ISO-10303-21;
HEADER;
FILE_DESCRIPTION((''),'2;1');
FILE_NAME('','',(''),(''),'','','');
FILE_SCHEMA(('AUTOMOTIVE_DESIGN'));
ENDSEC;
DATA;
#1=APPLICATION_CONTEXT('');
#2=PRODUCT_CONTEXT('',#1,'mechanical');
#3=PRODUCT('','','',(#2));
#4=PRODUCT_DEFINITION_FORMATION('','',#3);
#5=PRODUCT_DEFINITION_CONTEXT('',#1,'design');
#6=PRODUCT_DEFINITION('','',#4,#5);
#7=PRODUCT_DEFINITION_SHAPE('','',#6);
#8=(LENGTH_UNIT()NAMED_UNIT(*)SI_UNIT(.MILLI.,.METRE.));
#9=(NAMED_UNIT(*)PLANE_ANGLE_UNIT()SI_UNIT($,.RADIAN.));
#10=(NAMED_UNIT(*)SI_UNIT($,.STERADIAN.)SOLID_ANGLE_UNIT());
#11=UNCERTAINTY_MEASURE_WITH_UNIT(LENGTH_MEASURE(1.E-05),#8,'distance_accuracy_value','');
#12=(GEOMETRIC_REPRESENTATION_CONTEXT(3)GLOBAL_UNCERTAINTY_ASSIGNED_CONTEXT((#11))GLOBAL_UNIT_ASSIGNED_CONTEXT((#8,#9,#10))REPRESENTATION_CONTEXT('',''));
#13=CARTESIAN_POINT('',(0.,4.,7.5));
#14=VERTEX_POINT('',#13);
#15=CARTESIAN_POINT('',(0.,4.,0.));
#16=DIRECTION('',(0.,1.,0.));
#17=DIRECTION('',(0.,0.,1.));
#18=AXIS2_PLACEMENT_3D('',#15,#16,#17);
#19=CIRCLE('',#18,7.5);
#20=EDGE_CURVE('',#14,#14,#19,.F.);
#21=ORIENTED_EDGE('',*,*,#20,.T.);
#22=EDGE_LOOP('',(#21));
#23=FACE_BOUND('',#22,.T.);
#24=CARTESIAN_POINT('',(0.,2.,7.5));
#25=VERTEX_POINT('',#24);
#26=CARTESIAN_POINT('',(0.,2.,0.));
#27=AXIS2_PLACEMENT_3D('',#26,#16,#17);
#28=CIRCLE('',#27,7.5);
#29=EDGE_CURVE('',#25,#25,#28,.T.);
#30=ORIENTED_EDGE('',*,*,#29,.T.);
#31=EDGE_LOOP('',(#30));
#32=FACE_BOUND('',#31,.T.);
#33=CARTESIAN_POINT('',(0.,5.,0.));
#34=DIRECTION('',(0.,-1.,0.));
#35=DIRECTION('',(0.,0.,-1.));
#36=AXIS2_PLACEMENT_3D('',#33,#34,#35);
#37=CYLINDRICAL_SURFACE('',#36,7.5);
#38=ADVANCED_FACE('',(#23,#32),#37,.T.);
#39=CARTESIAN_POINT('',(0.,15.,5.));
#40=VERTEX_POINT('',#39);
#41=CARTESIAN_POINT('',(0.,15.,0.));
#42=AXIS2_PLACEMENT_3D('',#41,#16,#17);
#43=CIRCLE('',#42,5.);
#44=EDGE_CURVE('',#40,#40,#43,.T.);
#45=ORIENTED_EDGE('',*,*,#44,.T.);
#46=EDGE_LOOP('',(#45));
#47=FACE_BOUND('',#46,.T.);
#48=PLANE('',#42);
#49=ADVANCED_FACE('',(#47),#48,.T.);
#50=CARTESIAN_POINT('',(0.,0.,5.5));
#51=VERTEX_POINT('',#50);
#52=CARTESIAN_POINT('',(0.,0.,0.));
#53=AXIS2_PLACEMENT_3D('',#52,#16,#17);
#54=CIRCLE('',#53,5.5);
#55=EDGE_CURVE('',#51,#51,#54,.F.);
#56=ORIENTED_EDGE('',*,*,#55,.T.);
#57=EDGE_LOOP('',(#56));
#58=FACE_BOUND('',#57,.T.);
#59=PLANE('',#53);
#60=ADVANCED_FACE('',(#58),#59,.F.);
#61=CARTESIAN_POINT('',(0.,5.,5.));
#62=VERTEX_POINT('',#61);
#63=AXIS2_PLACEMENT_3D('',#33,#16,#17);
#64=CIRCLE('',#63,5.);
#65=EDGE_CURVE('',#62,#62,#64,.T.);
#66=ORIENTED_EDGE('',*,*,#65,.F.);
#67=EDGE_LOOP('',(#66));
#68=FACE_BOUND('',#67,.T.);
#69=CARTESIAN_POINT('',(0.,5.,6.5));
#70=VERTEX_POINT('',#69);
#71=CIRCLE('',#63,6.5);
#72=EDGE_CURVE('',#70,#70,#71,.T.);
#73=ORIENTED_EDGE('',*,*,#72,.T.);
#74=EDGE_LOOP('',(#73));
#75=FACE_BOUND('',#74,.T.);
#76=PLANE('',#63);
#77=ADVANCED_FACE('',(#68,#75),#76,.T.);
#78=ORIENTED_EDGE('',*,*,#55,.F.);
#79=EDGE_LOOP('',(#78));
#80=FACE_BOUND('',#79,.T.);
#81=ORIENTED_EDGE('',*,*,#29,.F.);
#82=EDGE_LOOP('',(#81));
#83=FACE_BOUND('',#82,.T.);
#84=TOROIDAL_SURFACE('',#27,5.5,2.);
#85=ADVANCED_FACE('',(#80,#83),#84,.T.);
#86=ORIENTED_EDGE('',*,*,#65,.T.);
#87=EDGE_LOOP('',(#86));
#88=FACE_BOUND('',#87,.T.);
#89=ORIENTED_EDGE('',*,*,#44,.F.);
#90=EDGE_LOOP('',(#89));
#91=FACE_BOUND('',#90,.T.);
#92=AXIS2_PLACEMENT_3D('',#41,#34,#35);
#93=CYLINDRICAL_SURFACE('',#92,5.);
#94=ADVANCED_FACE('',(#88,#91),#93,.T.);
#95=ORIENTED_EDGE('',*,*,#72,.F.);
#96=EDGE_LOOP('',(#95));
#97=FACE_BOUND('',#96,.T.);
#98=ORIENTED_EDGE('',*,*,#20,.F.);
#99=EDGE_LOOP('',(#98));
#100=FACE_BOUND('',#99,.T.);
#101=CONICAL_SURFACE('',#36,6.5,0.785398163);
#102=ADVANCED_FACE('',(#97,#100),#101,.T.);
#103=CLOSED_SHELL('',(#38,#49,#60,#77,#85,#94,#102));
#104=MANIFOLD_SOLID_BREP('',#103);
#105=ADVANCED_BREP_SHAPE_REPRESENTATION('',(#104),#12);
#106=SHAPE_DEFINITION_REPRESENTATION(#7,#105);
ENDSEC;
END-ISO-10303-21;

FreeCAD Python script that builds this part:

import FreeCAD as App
import Part
import Sketcher
from FreeCAD import Vector


def edges_at(feature, points):
    """Names of the edges that pass closest to the given points."""
    edges = feature.Shape.Edges
    near = lambda p: min(range(len(edges)), key=lambda i: edges[i].distToShape(Part.Vertex(*p))[0])
    return sorted({f"Edge{near(p) + 1}" for p in points})

doc = App.newDocument("Part")
body = doc.addObject("PartDesign::Body", "Body")

# Sketch on XZ plane
sketch1 = body.newObject("Sketcher::SketchObject", "Sketch")
sketch1.AttachmentSupport = (doc.getObject("XZ_Plane"), [""])
sketch1.MapMode = "FlatFace"
sketch1.addGeometry(Part.Circle(Vector(0, 0, 0), Vector(0, 0, 1), 8), False)
sketch1.addConstraint(Sketcher.Constraint("Coincident", 0, 3, -1, 1))
sketch1.addConstraint(Sketcher.Constraint("Diameter", 0, 15.0))
pad1 = body.newObject("PartDesign::Pad", "Pad")
pad1.Profile = sketch1
pad1.Length = 5
pad1.Reversed = True
doc.recompute()

fillet = body.newObject("PartDesign::Fillet", "Fillet")
fillet.Base = (pad1, edges_at(pad1, [(0, 0, -7.5)]))
fillet.Radius = 2

# Sketch on XZ plane
sketch2 = body.newObject("Sketcher::SketchObject", "Sketch001")
sketch2.AttachmentSupport = (doc.getObject("XZ_Plane"), [""])
sketch2.MapMode = "FlatFace"
sketch2.AttachmentOffset = App.Placement(Vector(0, 0, -5), App.Rotation())
sketch2.addGeometry(Part.Circle(Vector(0, 0, 0), Vector(0, 0, 1), 5), False)
sketch2.addConstraint(Sketcher.Constraint("Coincident", 0, 3, -1, 1))
sketch2.addConstraint(Sketcher.Constraint("Diameter", 0, 10.0))
pad2 = body.newObject("PartDesign::Pad", "Pad001")
pad2.Profile = sketch2
pad2.Length = 10
pad2.Reversed = True
doc.recompute()

chamfer = body.newObject("PartDesign::Chamfer", "Chamfer")
chamfer.Base = (pad2, edges_at(pad2, [(0, 5, -7.5)]))
chamfer.Size = 1

doc.recompute()
